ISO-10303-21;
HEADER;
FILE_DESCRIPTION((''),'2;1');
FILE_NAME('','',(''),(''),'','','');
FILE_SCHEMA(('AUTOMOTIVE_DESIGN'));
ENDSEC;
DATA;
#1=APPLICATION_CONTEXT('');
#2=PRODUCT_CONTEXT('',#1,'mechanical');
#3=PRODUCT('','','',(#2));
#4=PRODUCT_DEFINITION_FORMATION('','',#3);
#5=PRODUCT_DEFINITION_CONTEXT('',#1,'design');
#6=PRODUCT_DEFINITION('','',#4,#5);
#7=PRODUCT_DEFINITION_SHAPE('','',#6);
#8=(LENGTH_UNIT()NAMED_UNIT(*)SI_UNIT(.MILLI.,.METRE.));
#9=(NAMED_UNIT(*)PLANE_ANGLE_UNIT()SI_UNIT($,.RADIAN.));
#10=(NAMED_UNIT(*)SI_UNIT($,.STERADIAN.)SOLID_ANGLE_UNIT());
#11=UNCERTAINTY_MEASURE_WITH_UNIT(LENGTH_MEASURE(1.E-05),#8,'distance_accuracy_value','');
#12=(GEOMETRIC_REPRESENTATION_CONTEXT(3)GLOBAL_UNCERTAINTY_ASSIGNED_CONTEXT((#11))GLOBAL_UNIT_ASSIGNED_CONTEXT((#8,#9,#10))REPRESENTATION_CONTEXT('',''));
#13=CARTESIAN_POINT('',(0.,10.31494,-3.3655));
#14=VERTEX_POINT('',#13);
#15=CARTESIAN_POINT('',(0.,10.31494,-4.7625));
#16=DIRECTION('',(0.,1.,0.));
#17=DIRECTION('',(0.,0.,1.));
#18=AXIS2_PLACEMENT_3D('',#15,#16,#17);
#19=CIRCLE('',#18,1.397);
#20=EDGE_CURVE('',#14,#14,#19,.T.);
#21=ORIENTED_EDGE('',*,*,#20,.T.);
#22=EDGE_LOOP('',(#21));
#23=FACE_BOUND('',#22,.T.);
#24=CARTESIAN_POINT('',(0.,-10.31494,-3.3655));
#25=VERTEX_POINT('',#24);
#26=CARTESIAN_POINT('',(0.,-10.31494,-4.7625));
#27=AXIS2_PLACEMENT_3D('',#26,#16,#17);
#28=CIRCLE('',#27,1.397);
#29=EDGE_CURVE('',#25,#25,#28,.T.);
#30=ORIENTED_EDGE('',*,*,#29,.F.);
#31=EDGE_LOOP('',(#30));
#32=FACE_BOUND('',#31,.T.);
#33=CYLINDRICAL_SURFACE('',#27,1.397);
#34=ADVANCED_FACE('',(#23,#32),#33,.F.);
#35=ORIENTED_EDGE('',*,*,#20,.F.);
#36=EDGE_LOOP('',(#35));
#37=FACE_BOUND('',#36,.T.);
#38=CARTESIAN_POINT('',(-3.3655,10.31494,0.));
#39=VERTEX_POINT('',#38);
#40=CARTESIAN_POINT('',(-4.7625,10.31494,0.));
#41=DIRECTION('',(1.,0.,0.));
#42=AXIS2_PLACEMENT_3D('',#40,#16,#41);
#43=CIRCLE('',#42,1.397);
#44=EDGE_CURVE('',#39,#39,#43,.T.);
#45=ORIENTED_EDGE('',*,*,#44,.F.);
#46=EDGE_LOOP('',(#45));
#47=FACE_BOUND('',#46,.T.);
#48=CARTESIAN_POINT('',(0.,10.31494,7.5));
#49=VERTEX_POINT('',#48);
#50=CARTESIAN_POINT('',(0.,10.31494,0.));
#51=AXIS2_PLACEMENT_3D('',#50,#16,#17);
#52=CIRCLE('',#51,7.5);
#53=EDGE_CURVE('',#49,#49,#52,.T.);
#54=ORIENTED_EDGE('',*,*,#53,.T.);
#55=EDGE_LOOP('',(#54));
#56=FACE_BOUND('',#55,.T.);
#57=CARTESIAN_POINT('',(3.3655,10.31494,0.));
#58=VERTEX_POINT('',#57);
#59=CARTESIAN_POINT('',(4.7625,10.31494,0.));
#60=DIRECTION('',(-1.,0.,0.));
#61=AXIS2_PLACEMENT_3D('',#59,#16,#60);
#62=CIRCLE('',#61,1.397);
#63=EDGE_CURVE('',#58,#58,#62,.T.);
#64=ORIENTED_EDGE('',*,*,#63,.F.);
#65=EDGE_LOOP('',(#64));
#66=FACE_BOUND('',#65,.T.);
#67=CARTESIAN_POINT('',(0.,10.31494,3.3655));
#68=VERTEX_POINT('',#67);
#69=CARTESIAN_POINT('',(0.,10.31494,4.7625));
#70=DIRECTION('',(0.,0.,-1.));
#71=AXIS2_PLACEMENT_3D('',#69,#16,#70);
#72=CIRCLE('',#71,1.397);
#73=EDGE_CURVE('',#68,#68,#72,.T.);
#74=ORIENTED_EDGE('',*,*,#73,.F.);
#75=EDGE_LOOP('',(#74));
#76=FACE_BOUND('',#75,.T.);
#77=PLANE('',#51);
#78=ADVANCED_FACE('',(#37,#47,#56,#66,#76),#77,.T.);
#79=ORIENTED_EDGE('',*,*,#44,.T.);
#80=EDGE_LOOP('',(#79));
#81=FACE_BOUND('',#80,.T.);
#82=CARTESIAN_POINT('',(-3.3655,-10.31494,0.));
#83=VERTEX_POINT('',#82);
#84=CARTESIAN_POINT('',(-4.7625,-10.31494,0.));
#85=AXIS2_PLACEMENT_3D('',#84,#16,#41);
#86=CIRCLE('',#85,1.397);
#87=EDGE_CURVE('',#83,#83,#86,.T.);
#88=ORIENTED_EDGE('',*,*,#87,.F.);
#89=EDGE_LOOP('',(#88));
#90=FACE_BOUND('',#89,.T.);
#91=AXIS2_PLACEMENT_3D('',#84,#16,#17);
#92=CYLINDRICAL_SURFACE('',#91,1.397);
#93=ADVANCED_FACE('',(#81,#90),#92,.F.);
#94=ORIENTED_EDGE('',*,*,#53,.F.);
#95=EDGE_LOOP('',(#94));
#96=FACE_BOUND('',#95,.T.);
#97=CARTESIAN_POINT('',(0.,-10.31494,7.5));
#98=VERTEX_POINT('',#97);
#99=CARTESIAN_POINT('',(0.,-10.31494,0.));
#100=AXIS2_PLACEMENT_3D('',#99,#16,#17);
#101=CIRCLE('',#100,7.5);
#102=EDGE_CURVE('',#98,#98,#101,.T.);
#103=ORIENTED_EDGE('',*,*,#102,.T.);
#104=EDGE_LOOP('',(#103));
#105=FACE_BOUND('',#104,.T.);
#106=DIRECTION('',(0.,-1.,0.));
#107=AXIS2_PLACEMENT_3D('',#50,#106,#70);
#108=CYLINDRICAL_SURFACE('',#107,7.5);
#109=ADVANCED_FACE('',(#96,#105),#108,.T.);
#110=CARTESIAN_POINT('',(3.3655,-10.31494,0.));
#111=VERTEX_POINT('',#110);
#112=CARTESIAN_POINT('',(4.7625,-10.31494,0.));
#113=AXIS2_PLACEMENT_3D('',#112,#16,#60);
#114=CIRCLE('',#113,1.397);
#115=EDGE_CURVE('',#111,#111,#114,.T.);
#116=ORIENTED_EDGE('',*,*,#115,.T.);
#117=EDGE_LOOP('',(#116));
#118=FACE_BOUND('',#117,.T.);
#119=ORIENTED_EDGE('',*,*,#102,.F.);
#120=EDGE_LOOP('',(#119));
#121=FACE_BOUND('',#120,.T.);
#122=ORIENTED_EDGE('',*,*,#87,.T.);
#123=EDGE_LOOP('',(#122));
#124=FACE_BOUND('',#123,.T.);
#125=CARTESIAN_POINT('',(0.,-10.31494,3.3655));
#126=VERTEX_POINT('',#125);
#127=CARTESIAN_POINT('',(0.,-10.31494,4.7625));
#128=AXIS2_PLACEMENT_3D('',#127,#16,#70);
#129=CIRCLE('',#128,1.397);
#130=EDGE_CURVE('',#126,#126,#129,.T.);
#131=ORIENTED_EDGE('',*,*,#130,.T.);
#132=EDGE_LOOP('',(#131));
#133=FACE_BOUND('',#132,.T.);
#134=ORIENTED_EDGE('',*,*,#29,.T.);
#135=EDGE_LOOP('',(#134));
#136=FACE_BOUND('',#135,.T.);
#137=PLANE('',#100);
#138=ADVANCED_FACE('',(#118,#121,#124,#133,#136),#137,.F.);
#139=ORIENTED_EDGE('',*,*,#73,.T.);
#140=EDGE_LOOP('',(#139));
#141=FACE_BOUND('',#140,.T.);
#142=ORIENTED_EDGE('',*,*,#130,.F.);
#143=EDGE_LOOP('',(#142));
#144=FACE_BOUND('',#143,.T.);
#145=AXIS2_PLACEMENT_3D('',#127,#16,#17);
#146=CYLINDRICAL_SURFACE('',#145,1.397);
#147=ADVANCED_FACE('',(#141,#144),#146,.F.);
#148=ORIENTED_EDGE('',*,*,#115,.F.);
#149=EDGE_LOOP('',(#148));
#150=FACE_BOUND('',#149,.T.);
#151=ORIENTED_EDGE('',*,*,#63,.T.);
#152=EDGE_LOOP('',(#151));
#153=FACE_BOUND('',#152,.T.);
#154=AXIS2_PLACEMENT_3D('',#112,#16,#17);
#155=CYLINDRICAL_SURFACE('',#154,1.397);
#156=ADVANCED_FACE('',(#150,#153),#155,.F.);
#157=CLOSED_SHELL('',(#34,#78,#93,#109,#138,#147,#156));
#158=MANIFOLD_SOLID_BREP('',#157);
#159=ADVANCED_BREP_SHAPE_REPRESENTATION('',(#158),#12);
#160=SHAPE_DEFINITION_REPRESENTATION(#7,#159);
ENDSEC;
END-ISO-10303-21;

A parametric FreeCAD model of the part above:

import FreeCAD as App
import Part
import Sketcher
from FreeCAD import Vector
Q = App.Units.Quantity

doc = App.newDocument("Part")
body = doc.addObject("PartDesign::Body", "Body")

sketch1 = doc.addObject("Sketcher::SketchObject", "Sketch")
body.addObject(sketch1)
sketch1.AttachmentSupport = (doc.XZ_Plane, [""])
sketch1.MapMode = "FlatFace"
sketch1.addGeometry(Part.Circle(Vector(0, 0, 0), Vector(0, 0, 1), 8), False)
sketch1.addConstraint([
    Sketcher.Constraint("Coincident", 0, 3, -1, 1),
    Sketcher.Constraint("Diameter", 0, Q("15 mm")),
])
pad1 = doc.addObject("PartDesign::Pad", "Pad")
body.addObject(pad1)
pad1.Profile = sketch1
pad1.Length = 20.62988
pad1.Midplane = True

sketch2 = doc.addObject("Sketcher::SketchObject", "Sketch001")
body.addObject(sketch2)
sketch2.AttachmentSupport = (doc.XZ_Plane, [""])
sketch2.MapMode = "FlatFace"
sketch2.addGeometry(Part.Circle(Vector(0, -4.8, 0), Vector(0, 0, 1), 1.4), False)
sketch2.addConstraint([
    Sketcher.Constraint("PointOnObject", 0, 3, -2),
    Sketcher.Constraint("Diameter", 0, Q("2.794 mm")),
    Sketcher.Constraint("DistanceY", 0, 3, -1, 1, Q("4.7625 mm")),
])
pocket1 = doc.addObject("PartDesign::Pocket", "Pocket")
body.addObject(pocket1)
pocket1.Profile = sketch2
pocket1.Length = 22.62988
pocket1.Midplane = True
doc.recompute()

polarpattern = doc.addObject("PartDesign::PolarPattern", "PolarPattern")
body.addObject(polarpattern)
polarpattern.Originals = [pocket1]
polarpattern.Axis = (doc.Y_Axis, [""])
polarpattern.Angle = 360
polarpattern.Occurrences = 4
body.Tip = polarpattern

doc.recompute()
